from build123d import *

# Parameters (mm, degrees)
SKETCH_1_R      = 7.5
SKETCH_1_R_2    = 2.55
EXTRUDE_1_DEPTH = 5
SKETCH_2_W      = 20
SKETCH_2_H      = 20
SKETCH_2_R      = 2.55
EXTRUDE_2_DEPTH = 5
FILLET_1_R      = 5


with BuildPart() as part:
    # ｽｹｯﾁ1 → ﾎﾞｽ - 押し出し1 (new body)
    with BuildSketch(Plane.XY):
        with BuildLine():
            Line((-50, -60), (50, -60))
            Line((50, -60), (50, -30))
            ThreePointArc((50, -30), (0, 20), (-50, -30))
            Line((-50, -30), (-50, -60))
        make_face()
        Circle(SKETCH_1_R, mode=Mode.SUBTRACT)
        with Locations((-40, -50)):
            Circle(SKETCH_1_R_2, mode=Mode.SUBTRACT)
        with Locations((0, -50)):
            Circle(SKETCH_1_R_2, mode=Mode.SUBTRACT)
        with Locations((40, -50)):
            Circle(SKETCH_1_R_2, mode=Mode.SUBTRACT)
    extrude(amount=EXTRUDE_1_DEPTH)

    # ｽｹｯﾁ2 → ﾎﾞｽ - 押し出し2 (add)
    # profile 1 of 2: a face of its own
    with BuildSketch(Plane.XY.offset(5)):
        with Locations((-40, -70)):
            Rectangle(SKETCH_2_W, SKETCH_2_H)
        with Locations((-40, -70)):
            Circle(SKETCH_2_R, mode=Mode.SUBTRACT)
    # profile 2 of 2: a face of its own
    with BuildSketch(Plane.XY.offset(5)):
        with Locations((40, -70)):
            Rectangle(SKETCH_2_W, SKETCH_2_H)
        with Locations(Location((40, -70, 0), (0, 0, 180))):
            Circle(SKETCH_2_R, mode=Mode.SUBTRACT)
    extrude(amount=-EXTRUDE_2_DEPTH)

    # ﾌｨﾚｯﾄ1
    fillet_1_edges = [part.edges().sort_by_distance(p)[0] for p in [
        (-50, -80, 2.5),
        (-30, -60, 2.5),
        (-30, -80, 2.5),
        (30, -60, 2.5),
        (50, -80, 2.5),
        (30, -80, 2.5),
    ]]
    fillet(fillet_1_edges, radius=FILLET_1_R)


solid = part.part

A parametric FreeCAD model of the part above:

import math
import FreeCAD as App
import Part
import Sketcher
Q = App.Units.Quantity


def edges_at(feature, points):
    """Names of the edges that pass closest to the given points."""
    edges = feature.Shape.Edges
    near = lambda p: min(range(len(edges)), key=lambda i: edges[i].distToShape(Part.Vertex(*p))[0])
    return sorted({f"Edge{near(p) + 1}" for p in points})

doc = App.newDocument("Part")
body = doc.addObject("PartDesign::Body", "Body")

# Sketch on XY plane
sketch1 = body.newObject("Sketcher::SketchObject", "Sketch")
sketch1.AttachmentSupport = (doc.getObject("XY_Plane"), [""])
sketch1.MapMode = "FlatFace"
sketch1.addGeometry([
    Part.LineSegment(App.Vector(-50, -60, 0), App.Vector(50, -60, 0)),  # 0
    Part.LineSegment(App.Vector(50, -60, 0), App.Vector(50, -30, 0)),  # 1
    Part.ArcOfCircle(Part.Circle(App.Vector(0, -30, 0), App.Vector(0, 0, 1), 50), math.radians(0), math.radians(180)),  # 2
    Part.LineSegment(App.Vector(-50, -30, 0), App.Vector(-50, -60, 0)),  # 3
    Part.Circle(App.Vector(-40, -50, 0), App.Vector(0, 0, 1), 2.5),  # 4
    Part.Circle(App.Vector(0, -50, 0), App.Vector(0, 0, 1), 2.5),  # 5
    Part.Circle(App.Vector(40, -50, 0), App.Vector(0, 0, 1), 2.5),  # 6
    Part.Circle(App.Vector(0, 0, 0), App.Vector(0, 0, 1), 7.5),  # 7
], False)
sketch1.addConstraint([
    Sketcher.Constraint("Coincident", 0, 2, 1, 1),
    Sketcher.Constraint("Tangent", 1, 2, 2, 1),
    Sketcher.Constraint("Tangent", 2, 2, 3, 1),
    Sketcher.Constraint("Coincident", 3, 2, 0, 1),
    Sketcher.Constraint("Horizontal", 0),
    Sketcher.Constraint("Vertical", 1),
    Sketcher.Constraint("Vertical", 3),
    Sketcher.Constraint("Coincident", 7, 3, -1, 1),
    Sketcher.Constraint("Equal", 4, 5),
    Sketcher.Constraint("Equal", 5, 6),
    Sketcher.Constraint("Symmetric", 4, 3, 6, 3, -2),
    Sketcher.Constraint("PointOnObject", 2, 3, -2),
    Sketcher.Constraint("PointOnObject", 5, 3, -2),
    Sketcher.Constraint("Horizontal", 4, 3, 5, 3),
    Sketcher.Constraint("Diameter", 7, Q("15 mm")),
    Sketcher.Constraint("Radius", 2, Q("50 mm")),
    Sketcher.Constraint("Diameter", 4, Q("5.1 mm")),
    Sketcher.Constraint("DistanceY", 1, 1, 1, 2, Q("30 mm")),
    Sketcher.Constraint("DistanceY", 2, 3, -1, 1, Q("30 mm")),
    Sketcher.Constraint("DistanceX", 4, 3, -1, 1, Q("40 mm")),
    Sketcher.Constraint("DistanceY", 4, 3, -1, 1, Q("50 mm")),
])
pad1 = body.newObject("PartDesign::Pad", "Pad")
pad1.Profile = sketch1
pad1.Length = 5

# Sketch on XY plane
sketch2 = body.newObject("Sketcher::SketchObject", "Sketch001")
sketch2.AttachmentSupport = (doc.getObject("XY_Plane"), [""])
sketch2.MapMode = "FlatFace"
sketch2.AttachmentOffset = App.Placement(App.Vector(0, 0, 5), App.Rotation())
sketch2.addGeometry([
    Part.LineSegment(App.Vector(-50, -60, 0), App.Vector(-50, -80, 0)),  # 0
    Part.LineSegment(App.Vector(-50, -80, 0), App.Vector(-30, -80, 0)),  # 1
    Part.LineSegment(App.Vector(-30, -80, 0), App.Vector(-30, -60, 0)),  # 2
    Part.LineSegment(App.Vector(-30, -60, 0), App.Vector(-50, -60, 0)),  # 3
    Part.Circle(App.Vector(-40, -70, 0), App.Vector(0, 0, 1), 2.5),  # 4
    Part.LineSegment(App.Vector(30, -60, 0), App.Vector(30, -80, 0)),  # 5
    Part.LineSegment(App.Vector(30, -80, 0), App.Vector(50, -80, 0)),  # 6
    Part.LineSegment(App.Vector(50, -80, 0), App.Vector(50, -60, 0)),  # 7
    Part.LineSegment(App.Vector(50, -60, 0), App.Vector(30, -60, 0)),  # 8
    Part.Circle(App.Vector(40, -70, 0), App.Vector(0, 0, 1), 2.5),  # 9
], False)
sketch2.addConstraint([
    Sketcher.Constraint("Coincident", 0, 2, 1, 1),
    Sketcher.Constraint("Coincident", 1, 2, 2, 1),
    Sketcher.Constraint("Coincident", 2, 2, 3, 1),
    Sketcher.Constraint("Coincident", 3, 2, 0, 1),
    Sketcher.Constraint("Coincident", 5, 2, 6, 1),
    Sketcher.Constraint("Coincident", 6, 2, 7, 1),
    Sketcher.Constraint("Coincident", 7, 2, 8, 1),
    Sketcher.Constraint("Coincident", 8, 2, 5, 1),
    Sketcher.Constraint("Vertical", 0),
    Sketcher.Constraint("Horizontal", 1),
    Sketcher.Constraint("Vertical", 2),
    Sketcher.Constraint("Horizontal", 3),
    Sketcher.Constraint("Vertical", 5),
    Sketcher.Constraint("Horizontal", 6),
    Sketcher.Constraint("Vertical", 7),
    Sketcher.Constraint("Horizontal", 8),
    Sketcher.Constraint("Equal", 4, 9),
    Sketcher.Constraint("Symmetric", 4, 3, 9, 3, -2),
    Sketcher.Constraint("Symmetric", 1, 2, 5, 2, -2),
    Sketcher.Constraint("Symmetric", 3, 2, 7, 2, -2),
    Sketcher.Constraint("Equal", 8, 0),
    Sketcher.Constraint("Diameter", 4, Q("5.1 mm")),
    Sketcher.Constraint("DistanceX", 1, 1, 1, 2, Q("20 mm")),
    Sketcher.Constraint("DistanceX", 4, 3, -1, 1, Q("40 mm")),
    Sketcher.Constraint("DistanceY", 4, 3, -1, 1, Q("70 mm")),
    Sketcher.Constraint("DistanceX", 0, 2, -1, 1, Q("50 mm")),
    Sketcher.Constraint("DistanceY", 0, 2, -1, 1, Q("80 mm")),
])
pad2 = body.newObject("PartDesign::Pad", "Pad001")
pad2.Profile = sketch2
pad2.Length = 5
pad2.Reversed = True
doc.recompute()

fillet = body.newObject("PartDesign::Fillet", "Fillet")
fillet.Base = (pad2, edges_at(pad2, [
    (-50, -80, 2.5),
    (-30, -60, 2.5),
    (-30, -80, 2.5),
    (30, -60, 2.5),
    (50, -80, 2.5),
    (30, -80, 2.5),
]))
fillet.Radius = 5

doc.recompute()
